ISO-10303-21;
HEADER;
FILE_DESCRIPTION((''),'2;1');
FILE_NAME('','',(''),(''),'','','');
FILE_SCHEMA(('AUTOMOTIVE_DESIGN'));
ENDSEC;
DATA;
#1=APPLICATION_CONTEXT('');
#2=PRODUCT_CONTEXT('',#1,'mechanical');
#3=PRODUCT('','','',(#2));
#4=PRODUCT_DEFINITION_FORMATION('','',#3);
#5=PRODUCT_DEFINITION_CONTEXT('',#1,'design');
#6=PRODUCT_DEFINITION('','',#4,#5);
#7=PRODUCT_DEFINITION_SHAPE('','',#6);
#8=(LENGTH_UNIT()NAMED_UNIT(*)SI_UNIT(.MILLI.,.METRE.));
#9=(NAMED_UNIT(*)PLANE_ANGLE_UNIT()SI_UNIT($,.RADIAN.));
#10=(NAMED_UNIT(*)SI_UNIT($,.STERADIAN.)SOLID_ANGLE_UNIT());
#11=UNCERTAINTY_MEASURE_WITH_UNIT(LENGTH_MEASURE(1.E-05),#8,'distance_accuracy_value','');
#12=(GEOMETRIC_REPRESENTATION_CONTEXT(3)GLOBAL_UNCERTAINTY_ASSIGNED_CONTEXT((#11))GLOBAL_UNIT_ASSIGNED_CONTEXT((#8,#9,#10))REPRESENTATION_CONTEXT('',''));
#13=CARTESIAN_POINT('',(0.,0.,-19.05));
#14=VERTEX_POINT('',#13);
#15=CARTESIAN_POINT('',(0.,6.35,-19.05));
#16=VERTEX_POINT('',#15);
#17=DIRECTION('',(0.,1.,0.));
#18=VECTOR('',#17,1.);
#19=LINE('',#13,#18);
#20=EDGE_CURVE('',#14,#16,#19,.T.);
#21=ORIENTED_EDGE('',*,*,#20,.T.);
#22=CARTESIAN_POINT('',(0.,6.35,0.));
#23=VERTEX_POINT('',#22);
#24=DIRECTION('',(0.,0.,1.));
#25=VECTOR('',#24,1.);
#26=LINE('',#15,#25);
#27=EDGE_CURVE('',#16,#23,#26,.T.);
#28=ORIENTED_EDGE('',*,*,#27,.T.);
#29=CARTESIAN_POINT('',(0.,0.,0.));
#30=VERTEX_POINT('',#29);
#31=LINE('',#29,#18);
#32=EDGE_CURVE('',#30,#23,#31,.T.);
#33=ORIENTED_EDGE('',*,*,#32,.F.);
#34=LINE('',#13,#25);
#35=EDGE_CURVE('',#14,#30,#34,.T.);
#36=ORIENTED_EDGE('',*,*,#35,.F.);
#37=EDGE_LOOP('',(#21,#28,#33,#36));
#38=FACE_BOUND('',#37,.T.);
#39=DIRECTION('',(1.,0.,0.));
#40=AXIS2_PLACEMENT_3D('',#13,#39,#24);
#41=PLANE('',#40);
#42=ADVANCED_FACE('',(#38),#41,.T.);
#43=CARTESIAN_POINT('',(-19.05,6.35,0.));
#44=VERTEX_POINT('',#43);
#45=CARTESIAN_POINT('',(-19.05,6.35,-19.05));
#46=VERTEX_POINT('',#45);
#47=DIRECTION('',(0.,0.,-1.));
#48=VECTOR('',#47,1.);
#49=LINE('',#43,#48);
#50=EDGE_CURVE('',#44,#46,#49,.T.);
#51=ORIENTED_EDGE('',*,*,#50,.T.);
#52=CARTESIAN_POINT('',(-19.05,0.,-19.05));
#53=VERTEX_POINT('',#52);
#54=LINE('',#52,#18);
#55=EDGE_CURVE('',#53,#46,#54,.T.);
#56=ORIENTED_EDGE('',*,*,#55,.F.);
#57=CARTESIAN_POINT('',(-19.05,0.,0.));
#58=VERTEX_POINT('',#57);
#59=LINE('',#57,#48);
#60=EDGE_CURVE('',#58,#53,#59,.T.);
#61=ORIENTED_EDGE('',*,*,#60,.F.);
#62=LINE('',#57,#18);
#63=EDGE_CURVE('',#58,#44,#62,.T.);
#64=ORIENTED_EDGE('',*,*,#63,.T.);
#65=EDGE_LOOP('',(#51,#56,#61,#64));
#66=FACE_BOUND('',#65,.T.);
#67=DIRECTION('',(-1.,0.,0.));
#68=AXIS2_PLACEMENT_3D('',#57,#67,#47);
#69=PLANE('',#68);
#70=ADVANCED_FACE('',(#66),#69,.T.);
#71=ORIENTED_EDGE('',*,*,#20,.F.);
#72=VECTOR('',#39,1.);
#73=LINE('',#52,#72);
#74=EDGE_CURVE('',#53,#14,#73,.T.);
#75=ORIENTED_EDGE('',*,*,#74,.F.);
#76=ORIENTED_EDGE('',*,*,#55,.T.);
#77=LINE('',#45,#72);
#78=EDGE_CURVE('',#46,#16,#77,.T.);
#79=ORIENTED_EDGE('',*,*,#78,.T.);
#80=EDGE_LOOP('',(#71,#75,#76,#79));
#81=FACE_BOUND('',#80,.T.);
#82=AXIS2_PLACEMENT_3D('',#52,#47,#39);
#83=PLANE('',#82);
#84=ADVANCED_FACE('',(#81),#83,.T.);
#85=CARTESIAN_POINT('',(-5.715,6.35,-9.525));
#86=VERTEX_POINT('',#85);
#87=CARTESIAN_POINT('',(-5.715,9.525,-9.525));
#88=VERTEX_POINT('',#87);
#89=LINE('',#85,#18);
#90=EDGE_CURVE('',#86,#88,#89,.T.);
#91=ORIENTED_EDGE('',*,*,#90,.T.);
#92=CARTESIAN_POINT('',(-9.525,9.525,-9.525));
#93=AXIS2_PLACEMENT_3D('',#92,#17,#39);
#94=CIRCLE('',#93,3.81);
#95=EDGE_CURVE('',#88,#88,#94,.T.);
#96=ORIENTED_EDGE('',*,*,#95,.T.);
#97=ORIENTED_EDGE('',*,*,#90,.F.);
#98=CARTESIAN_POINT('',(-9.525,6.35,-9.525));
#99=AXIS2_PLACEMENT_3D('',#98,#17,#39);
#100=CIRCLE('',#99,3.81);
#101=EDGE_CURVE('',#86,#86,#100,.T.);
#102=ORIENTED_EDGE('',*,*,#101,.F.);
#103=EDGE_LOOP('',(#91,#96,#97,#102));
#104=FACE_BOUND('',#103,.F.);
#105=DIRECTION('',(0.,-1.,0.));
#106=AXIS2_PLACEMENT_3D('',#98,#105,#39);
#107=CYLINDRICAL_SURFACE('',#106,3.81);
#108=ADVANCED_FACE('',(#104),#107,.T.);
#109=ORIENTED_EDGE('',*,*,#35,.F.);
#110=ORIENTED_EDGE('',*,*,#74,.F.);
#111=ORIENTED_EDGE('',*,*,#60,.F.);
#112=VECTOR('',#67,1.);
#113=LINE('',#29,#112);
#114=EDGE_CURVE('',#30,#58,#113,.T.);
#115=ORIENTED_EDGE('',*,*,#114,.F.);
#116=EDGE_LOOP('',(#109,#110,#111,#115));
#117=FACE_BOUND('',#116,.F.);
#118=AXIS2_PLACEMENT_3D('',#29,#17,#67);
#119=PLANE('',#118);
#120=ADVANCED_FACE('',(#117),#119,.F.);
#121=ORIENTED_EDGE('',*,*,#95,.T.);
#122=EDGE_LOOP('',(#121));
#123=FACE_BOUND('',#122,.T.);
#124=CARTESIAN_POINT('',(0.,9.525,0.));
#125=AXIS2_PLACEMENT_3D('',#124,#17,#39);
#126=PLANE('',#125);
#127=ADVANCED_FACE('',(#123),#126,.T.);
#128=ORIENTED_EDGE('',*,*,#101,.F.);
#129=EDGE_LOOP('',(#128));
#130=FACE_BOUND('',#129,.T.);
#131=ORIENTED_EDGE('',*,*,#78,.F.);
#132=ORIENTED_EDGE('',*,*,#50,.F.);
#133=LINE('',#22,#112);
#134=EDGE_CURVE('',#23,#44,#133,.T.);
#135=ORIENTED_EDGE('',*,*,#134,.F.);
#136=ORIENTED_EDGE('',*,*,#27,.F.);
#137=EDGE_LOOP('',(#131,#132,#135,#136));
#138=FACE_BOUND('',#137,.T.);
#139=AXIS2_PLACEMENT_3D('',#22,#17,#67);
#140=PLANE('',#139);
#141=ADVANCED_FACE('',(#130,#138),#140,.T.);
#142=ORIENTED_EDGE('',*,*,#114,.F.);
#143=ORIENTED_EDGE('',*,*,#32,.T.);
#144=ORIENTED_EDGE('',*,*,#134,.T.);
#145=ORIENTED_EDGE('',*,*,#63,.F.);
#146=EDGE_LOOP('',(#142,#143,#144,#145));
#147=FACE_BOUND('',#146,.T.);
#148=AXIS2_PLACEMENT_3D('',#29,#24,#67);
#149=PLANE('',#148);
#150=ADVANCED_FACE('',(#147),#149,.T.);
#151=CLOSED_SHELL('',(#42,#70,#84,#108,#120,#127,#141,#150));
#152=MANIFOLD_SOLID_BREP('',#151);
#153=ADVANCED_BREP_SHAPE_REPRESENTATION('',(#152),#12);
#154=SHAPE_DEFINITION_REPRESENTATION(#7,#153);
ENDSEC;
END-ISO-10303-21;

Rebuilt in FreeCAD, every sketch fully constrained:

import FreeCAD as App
import Part
import Sketcher

V = App.Vector
Q = App.Units.Quantity


def add_polygon(sketch, points):
    """Adds a closed chain of lines whose ends are joined by coincident constraints."""
    first, n = sketch.GeometryCount, len(points)
    for a, b in zip(points, points[1:] + points[:1]):
        sketch.addGeometry(Part.LineSegment(App.Vector(*a, 0), App.Vector(*b, 0)), False)
    for i in range(n):
        sketch.addConstraint(Sketcher.Constraint("Coincident", first + i, 2, first + (i + 1) % n, 1))

doc = App.newDocument("Part")
body = doc.addObject("PartDesign::Body", "Body")

# Sketch on XZ plane
sketch1 = body.newObject("Sketcher::SketchObject", "Sketch")
sketch1.AttachmentSupport = (doc.getObject("XZ_Plane"), [""])
sketch1.MapMode = "FlatFace"
add_polygon(sketch1, [(-19.05, 0), (0, 0), (0, -19.05), (-19.05, -19.05)])  # lines 0-3
sketch1.addConstraint([
    Sketcher.Constraint("Horizontal", 0),
    Sketcher.Constraint("Vertical", 1),
    Sketcher.Constraint("Horizontal", 2),
    Sketcher.Constraint("Vertical", 3),
    Sketcher.Constraint("Coincident", 0, 2, -1, 1),
    Sketcher.Constraint("Equal", 2, 1),
    Sketcher.Constraint("DistanceX", 0, 1, 0, 2, Q("0.75 in")),
])
pad1 = body.newObject("PartDesign::Pad", "Pad")
pad1.Profile = sketch1
pad1.Length = Q("0.25 in")
pad1.Reversed = True

# Sketch on XZ plane
sketch2 = body.newObject("Sketcher::SketchObject", "Sketch001")
sketch2.AttachmentSupport = (doc.getObject("XZ_Plane"), [""])
sketch2.MapMode = "FlatFace"
sketch2.AttachmentOffset = App.Placement(V(0, 0, -0.25 * 25.4), App.Rotation())
sketch2.addGeometry(Part.Circle(V(-9.525, -9.525, 0), V(0, 0, 1), 3.81), False)
sketch2.addConstraint([
    Sketcher.Constraint("Diameter", 0, Q("0.3 in")),
    Sketcher.Constraint("DistanceX", 0, 3, -1, 1, Q("0.375 in")),
    Sketcher.Constraint("DistanceY", 0, 3, -1, 1, Q("0.375 in")),
])
pad2 = body.newObject("PartDesign::Pad", "Pad001")
pad2.Profile = sketch2
pad2.Length = Q("0.125 in")
pad2.Reversed = True

doc.recompute()
